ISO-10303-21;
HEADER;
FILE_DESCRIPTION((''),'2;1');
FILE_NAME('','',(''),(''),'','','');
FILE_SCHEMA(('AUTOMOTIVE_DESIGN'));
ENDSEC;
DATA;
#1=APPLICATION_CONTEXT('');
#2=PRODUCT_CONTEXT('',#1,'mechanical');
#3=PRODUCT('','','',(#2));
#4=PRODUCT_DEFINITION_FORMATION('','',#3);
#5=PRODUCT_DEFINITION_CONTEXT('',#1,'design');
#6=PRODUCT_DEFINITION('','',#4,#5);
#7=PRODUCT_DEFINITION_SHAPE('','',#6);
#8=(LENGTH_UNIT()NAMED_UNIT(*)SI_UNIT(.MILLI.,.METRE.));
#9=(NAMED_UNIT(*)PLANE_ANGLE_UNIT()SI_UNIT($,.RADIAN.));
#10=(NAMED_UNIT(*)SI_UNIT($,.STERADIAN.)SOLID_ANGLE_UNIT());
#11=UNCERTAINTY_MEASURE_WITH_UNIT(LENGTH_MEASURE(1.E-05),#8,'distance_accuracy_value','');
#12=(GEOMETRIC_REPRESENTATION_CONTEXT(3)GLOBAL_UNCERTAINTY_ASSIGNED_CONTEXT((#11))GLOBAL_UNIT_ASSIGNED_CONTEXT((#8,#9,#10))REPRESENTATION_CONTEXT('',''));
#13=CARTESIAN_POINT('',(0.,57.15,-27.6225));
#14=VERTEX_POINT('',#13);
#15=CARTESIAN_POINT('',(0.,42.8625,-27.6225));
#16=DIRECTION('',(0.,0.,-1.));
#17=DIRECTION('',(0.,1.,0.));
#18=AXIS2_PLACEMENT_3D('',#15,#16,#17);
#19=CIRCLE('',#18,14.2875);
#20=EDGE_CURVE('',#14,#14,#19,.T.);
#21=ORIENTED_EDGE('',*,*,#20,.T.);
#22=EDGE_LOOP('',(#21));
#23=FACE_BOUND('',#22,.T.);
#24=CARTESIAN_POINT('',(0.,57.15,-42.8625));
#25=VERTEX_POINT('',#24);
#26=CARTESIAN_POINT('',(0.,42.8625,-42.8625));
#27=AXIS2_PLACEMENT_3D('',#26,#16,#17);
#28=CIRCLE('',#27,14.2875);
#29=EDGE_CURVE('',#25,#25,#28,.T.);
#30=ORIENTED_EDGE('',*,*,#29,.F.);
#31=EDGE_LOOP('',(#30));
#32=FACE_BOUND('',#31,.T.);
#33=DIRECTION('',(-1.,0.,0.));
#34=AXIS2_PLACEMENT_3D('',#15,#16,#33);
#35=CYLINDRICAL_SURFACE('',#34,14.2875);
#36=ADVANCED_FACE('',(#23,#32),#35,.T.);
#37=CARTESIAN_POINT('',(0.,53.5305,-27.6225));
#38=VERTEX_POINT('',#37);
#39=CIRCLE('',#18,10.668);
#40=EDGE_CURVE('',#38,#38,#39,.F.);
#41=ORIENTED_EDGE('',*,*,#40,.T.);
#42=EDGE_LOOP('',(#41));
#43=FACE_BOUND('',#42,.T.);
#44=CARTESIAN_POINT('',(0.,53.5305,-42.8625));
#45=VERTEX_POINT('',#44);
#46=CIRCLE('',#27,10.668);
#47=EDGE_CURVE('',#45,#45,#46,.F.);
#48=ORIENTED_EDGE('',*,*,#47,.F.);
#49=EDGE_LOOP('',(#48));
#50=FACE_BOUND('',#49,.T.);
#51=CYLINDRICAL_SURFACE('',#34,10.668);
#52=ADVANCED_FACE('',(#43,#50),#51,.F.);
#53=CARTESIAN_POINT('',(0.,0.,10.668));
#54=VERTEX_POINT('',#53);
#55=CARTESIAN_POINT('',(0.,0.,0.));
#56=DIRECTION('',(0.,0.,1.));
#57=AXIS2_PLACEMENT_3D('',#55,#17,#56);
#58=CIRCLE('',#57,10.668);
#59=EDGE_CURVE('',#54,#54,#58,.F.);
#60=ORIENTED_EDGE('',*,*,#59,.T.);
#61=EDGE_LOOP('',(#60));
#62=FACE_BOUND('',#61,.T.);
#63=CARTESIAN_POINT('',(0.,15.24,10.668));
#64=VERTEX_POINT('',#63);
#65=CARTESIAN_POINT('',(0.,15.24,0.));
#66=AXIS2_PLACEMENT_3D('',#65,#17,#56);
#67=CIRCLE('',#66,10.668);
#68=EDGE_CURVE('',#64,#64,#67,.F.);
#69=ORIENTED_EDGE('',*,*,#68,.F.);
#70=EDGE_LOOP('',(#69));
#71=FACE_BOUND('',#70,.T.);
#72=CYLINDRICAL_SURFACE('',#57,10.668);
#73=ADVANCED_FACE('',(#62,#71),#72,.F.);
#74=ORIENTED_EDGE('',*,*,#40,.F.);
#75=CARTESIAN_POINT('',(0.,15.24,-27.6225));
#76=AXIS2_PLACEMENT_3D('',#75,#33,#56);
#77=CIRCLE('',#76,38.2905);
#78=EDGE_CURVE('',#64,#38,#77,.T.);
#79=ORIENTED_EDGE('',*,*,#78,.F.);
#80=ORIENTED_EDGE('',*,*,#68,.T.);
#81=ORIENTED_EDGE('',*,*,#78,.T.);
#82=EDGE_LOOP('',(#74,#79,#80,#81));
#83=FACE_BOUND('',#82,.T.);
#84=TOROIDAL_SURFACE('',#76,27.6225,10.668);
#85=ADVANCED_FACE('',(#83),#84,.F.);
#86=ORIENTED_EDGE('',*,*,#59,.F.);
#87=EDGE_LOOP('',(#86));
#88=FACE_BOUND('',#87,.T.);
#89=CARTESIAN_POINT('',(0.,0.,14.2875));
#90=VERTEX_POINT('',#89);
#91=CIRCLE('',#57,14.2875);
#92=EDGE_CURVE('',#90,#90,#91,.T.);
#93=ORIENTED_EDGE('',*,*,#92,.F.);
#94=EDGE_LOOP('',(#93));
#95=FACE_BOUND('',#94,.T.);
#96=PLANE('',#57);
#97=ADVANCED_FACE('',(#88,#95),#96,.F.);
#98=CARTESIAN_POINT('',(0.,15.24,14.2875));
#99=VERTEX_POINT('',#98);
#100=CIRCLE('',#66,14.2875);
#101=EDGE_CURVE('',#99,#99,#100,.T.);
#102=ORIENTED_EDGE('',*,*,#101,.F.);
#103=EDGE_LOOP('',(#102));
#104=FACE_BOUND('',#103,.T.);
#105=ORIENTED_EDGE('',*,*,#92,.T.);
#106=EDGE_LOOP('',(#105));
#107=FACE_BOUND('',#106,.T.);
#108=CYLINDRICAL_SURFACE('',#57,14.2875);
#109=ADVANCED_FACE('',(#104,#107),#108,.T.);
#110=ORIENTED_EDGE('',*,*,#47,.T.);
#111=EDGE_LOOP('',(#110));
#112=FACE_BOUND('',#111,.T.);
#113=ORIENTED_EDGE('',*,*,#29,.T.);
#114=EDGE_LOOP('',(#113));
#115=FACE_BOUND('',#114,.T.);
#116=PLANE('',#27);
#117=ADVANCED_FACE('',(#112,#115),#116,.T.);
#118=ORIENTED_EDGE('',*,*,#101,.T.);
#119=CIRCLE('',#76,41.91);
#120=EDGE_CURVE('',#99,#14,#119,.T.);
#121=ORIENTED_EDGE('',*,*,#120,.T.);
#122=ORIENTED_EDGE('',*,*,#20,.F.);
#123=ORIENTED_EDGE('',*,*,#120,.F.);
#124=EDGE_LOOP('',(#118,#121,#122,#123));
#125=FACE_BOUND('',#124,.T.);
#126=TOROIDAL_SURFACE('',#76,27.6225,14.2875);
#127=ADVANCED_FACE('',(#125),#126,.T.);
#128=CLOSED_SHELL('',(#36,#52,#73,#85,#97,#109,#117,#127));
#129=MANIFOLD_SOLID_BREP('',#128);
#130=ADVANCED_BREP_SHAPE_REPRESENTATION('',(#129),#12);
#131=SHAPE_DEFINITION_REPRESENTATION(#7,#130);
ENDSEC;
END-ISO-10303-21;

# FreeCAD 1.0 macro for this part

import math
import FreeCAD as App
import Part
import Sketcher

V = App.Vector
Q = App.Units.Quantity

doc = App.newDocument("Part")
body = doc.addObject("PartDesign::Body", "Body")

sketch1 = body.newObject("Sketcher::SketchObject", "Sketch")
sketch1.AttachmentSupport = (doc.getObject("XZ_Plane"), [""])
sketch1.MapMode = "FlatFace"
sketch1.addGeometry(Part.Circle(V(0, 0, 0), V(0, 0, 1), 14), False)
sketch1.addGeometry(Part.Circle(V(0, 0, 0), V(0, 0, 1), 11), False)
sketch1.addConstraint(Sketcher.Constraint("Coincident", 0, 3, -1, 1))
sketch1.addConstraint(Sketcher.Constraint("Coincident", 1, 3, -1, 1))
sketch1.addConstraint(Sketcher.Constraint("Diameter", 1, Q("0.84 in")))
sketch1.addConstraint(Sketcher.Constraint("Diameter", 0, Q("1.125 in")))

sketch2 = body.newObject("Sketcher::SketchObject", "Sketch001")
sketch2.AttachmentSupport = (doc.getObject("YZ_Plane"), [""])
sketch2.MapMode = "FlatFace"
sketch2.addGeometry(Part.LineSegment(V(0, 0, 0), V(15, 0, 0)), False)
sketch2.addGeometry(Part.ArcOfCircle(Part.Circle(V(15, -28, 0), V(0, 0, 1), 28), math.radians(0), math.radians(90)), False)
sketch2.addGeometry(Part.LineSegment(V(43, -28, 0), V(43, -43, 0)), False)
sketch2.addConstraint(Sketcher.Constraint("Tangent", 0, 2, 1, 2))
sketch2.addConstraint(Sketcher.Constraint("Tangent", 1, 1, 2, 1))
sketch2.addConstraint(Sketcher.Constraint("Horizontal", 0))
sketch2.addConstraint(Sketcher.Constraint("Vertical", 2))
sketch2.addConstraint(Sketcher.Constraint("Coincident", 0, 1, -1, 1))
sketch2.addConstraint(Sketcher.Constraint("Equal", 0, 2))
sketch2.addConstraint(Sketcher.Constraint("DistanceX", 0, 1, 0, 2, Q("0.6 in")))
sketch2.addConstraint(Sketcher.Constraint("Radius", 1, Q("1.0875 in")))
doc.recompute()

additivepipe = body.newObject("PartDesign::AdditivePipe", "AdditivePipe")
additivepipe.Profile = sketch1
additivepipe.Spine = (sketch2, ["Edge1", "Edge2", "Edge3"])

doc.recompute()
